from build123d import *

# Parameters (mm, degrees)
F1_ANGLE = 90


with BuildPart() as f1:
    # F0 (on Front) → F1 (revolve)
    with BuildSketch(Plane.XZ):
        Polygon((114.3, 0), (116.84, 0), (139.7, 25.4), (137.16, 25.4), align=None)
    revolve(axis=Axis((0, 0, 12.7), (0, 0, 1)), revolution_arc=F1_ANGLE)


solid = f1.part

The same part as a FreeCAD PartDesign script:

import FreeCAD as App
import Part
import Sketcher
from FreeCAD import Vector
Q = App.Units.Quantity

doc = App.newDocument("Part")
body = doc.addObject("PartDesign::Body", "Body")

sketch1 = body.newObject("Sketcher::SketchObject", "Sketch")
sketch1.AttachmentSupport = (doc.getObject("XZ_Plane"), [""])
sketch1.MapMode = "FlatFace"
sketch1.addGeometry(Part.LineSegment(Vector(114.3, 0, 0), Vector(116.84, 0, 0)), False)
sketch1.addGeometry(Part.LineSegment(Vector(116.84, 0, 0), Vector(139.7, 25.4, 0)), False)
sketch1.addGeometry(Part.LineSegment(Vector(139.7, 25.4, 0), Vector(137.16, 25.4, 0)), False)
sketch1.addGeometry(Part.LineSegment(Vector(137.16, 25.4, 0), Vector(114.3, 0, 0)), False)
sketch1.addConstraint(Sketcher.Constraint("Coincident", 0, 2, 1, 1))
sketch1.addConstraint(Sketcher.Constraint("Coincident", 1, 2, 2, 1))
sketch1.addConstraint(Sketcher.Constraint("Coincident", 2, 2, 3, 1))
sketch1.addConstraint(Sketcher.Constraint("Coincident", 3, 2, 0, 1))
sketch1.addConstraint(Sketcher.Constraint("Horizontal", 0))
sketch1.addConstraint(Sketcher.Constraint("Horizontal", 2))
sketch1.addConstraint(Sketcher.Constraint("PointOnObject", 0, 2, -1))
sketch1.addConstraint(Sketcher.Constraint("Parallel", 1, 3))
sketch1.addConstraint(Sketcher.Constraint("DistanceX", 0, 1, 0, 2, Q("0.1 in")))
sketch1.addConstraint(Sketcher.Constraint("DistanceY", -1, 1, 1, 2, Q("1 in")))
sketch1.addConstraint(Sketcher.Constraint("DistanceX", 3, 2, 1, 2, Q("1 in")))
sketch1.addConstraint(Sketcher.Constraint("DistanceX", -1, 1, 0, 2, Q("4.6 in")))
revolution = body.newObject("PartDesign::Revolution", "Revolution")
revolution.Profile = sketch1
revolution.ReferenceAxis = (sketch1, ["V_Axis"])
revolution.Angle = 90

doc.recompute()
